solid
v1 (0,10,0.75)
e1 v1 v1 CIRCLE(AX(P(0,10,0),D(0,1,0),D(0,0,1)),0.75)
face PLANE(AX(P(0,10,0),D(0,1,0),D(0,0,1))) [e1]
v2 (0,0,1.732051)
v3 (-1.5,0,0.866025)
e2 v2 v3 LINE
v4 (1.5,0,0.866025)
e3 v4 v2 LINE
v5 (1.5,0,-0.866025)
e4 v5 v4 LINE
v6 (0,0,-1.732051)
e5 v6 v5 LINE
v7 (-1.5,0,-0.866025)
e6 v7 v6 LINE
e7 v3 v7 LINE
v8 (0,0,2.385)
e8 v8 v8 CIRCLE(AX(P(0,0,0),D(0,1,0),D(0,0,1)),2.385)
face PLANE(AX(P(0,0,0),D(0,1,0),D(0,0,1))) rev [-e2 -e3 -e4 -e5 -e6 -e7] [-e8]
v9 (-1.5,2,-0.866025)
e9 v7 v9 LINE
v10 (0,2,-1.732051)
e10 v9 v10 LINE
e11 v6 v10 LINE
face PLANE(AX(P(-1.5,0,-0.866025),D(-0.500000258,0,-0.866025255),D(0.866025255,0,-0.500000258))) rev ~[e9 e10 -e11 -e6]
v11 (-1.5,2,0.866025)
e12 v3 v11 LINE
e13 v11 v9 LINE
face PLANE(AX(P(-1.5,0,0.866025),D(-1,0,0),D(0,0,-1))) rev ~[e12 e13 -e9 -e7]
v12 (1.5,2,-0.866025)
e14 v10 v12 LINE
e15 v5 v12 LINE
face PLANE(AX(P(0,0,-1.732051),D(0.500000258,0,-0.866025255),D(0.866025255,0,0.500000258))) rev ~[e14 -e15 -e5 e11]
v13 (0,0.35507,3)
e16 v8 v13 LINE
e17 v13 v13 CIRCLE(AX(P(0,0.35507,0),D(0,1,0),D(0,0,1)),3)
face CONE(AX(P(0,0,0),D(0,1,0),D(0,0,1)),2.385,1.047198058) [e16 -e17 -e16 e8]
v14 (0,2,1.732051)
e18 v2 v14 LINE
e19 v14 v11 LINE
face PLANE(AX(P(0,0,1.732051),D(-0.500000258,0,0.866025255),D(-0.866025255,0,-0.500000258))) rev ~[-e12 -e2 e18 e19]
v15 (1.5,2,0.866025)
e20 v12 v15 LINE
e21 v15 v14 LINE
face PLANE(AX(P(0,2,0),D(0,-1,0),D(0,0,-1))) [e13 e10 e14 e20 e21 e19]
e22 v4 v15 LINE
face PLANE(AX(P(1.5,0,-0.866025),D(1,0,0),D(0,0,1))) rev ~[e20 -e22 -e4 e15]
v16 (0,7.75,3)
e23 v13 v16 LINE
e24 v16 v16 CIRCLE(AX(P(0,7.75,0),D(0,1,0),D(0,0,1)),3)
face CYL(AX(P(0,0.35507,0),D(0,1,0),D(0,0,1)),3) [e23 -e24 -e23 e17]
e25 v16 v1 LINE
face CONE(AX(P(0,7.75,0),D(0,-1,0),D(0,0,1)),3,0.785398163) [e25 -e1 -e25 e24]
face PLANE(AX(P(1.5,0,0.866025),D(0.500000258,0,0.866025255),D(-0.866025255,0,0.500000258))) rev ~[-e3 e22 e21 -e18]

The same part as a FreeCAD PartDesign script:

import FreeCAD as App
import Part
import Sketcher
from FreeCAD import Vector
Q = App.Units.Quantity

doc = App.newDocument("Part")
params = doc.addObject("Spreadsheet::Sheet", "Params")
for row, (alias, value) in enumerate([
    ("sketch1_width", "10 mm"),
    ("sketch1_height", "0.75 mm"),
    ("revolution_angle", "360 deg"),
    ("pocket1_length", "2 mm"),
], start=1):
    params.set(f"A{row}", alias)
    params.set(f"B{row}", "=" + value)
    params.setAlias(f"B{row}", alias)

body = doc.addObject("PartDesign::Body", "Body")

# Sketch on YZ plane
sketch1 = body.newObject("Sketcher::SketchObject", "Sketch")
sketch1.AttachmentSupport = (doc.getObject("YZ_Plane"), [""])
sketch1.MapMode = "FlatFace"
sketch1.addGeometry([
    Part.LineSegment(Vector(0, 2.4, 0), Vector(0, 0, 0)),  # 0
    Part.LineSegment(Vector(0, 0, 0), Vector(10, 0, 0)),  # 1
    Part.LineSegment(Vector(10, 0, 0), Vector(10, 0.8, 0)),  # 2
    Part.LineSegment(Vector(10, 0.8, 0), Vector(7.8, 3, 0)),  # 3
    Part.LineSegment(Vector(7.8, 3, 0), Vector(0.4, 3, 0)),  # 4
    Part.LineSegment(Vector(0.4, 3, 0), Vector(0, 2.4, 0)),  # 5
], False)
sketch1.addConstraint([
    Sketcher.Constraint("Coincident", 0, 2, 1, 1),
    Sketcher.Constraint("Coincident", 1, 2, 2, 1),
    Sketcher.Constraint("Coincident", 2, 2, 3, 1),
    Sketcher.Constraint("Coincident", 3, 2, 4, 1),
    Sketcher.Constraint("Coincident", 4, 2, 5, 1),
    Sketcher.Constraint("Coincident", 5, 2, 0, 1),
    Sketcher.Constraint("Vertical", 0),
    Sketcher.Constraint("Horizontal", 1),
    Sketcher.Constraint("Vertical", 2),
    Sketcher.Constraint("Horizontal", 4),
    Sketcher.Constraint("Coincident", 0, 2, -1, 1),
    Sketcher.Constraint("DistanceX", 1, 1, 1, 2, Q("10 mm")),
    Sketcher.Constraint("Angle", 3, Q("135 deg")),
    Sketcher.Constraint("DistanceY", -1, 1, 3, 2, Q("3 mm")),
    Sketcher.Constraint("DistanceY", 2, 1, 2, 2, Q("0.75 mm")),
    Sketcher.Constraint("DistanceY", 0, 2, 0, 1, Q("2.385 mm")),
    Sketcher.Constraint("DistanceX", 4, 2, 4, 1, Q("7.39493 mm")),
])
sketch1.setExpression("Constraints[11]", "Params.sketch1_width")
sketch1.setExpression("Constraints[14]", "Params.sketch1_height")
revolution = body.newObject("PartDesign::Revolution", "Revolution")
revolution.Profile = sketch1
revolution.ReferenceAxis = (sketch1, ["H_Axis"])
revolution.setExpression("Angle", "Params.revolution_angle")

# Sketch on XZ plane
sketch2 = body.newObject("Sketcher::SketchObject", "Sketch001")
sketch2.AttachmentSupport = (doc.getObject("XZ_Plane"), [""])
sketch2.MapMode = "FlatFace"
sketch2.addGeometry([
    Part.LineSegment(Vector(-1.5, 0.9, 0), Vector(-1.5, -0.9, 0)),  # 0
    Part.LineSegment(Vector(-1.5, -0.9, 0), Vector(0, -1.7, 0)),  # 1
    Part.LineSegment(Vector(0, -1.7, 0), Vector(1.5, -0.9, 0)),  # 2
    Part.LineSegment(Vector(1.5, -0.9, 0), Vector(1.5, 0.9, 0)),  # 3
    Part.LineSegment(Vector(1.5, 0.9, 0), Vector(0, 1.7, 0)),  # 4
    Part.LineSegment(Vector(0, 1.7, 0), Vector(-1.5, 0.9, 0)),  # 5
], False)
sketch2.addConstraint([
    Sketcher.Constraint("Coincident", 0, 2, 1, 1),
    Sketcher.Constraint("Coincident", 1, 2, 2, 1),
    Sketcher.Constraint("Coincident", 2, 2, 3, 1),
    Sketcher.Constraint("Coincident", 3, 2, 4, 1),
    Sketcher.Constraint("Coincident", 4, 2, 5, 1),
    Sketcher.Constraint("Coincident", 5, 2, 0, 1),
    Sketcher.Constraint("Vertical", 0),
    Sketcher.Constraint("Vertical", 3),
    Sketcher.Constraint("Symmetric", 0, 2, 3, 2, -1, 1),
    Sketcher.Constraint("Symmetric", 1, 2, 4, 2, -1, 1),
    Sketcher.Constraint("PointOnObject", 1, 2, -2),
    Sketcher.Constraint("Parallel", 2, 5),
    Sketcher.Constraint("Horizontal", 0, 2, 2, 2),
    Sketcher.Constraint("Angle", 1, Q("-30.000017 deg")),
    Sketcher.Constraint("DistanceX", 0, 2, 2, 2, Q("3 mm")),
    Sketcher.Constraint("DistanceY", 0, 2, 0, 1, Q("1.73205 mm")),
])
pocket1 = body.newObject("PartDesign::Pocket", "Pocket")
pocket1.Profile = sketch2
pocket1.setExpression("Length", "Params.pocket1_length")

doc.recompute()
